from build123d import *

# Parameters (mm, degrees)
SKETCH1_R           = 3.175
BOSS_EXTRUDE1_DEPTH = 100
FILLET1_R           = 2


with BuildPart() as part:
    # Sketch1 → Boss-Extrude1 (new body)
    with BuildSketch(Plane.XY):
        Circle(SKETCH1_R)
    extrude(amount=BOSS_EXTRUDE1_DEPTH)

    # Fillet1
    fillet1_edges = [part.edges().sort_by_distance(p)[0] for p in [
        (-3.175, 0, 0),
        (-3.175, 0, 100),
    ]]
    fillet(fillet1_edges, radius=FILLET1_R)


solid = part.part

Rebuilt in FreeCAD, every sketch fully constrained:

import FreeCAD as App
import Part
import Sketcher

V = App.Vector


def edges_at(feature, points):
    """Names of the edges that pass closest to the given points."""
    edges = feature.Shape.Edges
    near = lambda p: min(range(len(edges)), key=lambda i: edges[i].distToShape(Part.Vertex(*p))[0])
    return sorted({f"Edge{near(p) + 1}" for p in points})

doc = App.newDocument("Part")
body = doc.addObject("PartDesign::Body", "Body")

# Sketch on XY plane
sketch1 = body.newObject("Sketcher::SketchObject", "Sketch")
sketch1.AttachmentSupport = (doc.getObject("XY_Plane"), [""])
sketch1.MapMode = "FlatFace"
sketch1.addGeometry(Part.Circle(V(0, 0, 0), V(0, 0, 1), 3.2), False)
sketch1.addConstraint([
    Sketcher.Constraint("Coincident", 0, 3, -1, 1),
    Sketcher.Constraint("Diameter", 0, 6.35),
])
pad1 = body.newObject("PartDesign::Pad", "Pad")
pad1.Profile = sketch1
pad1.Length = 100
doc.recompute()

fillet = body.newObject("PartDesign::Fillet", "Fillet")
fillet.Base = (pad1, edges_at(pad1, [(-3.175, 0, 0), (-3.175, 0, 100)]))
fillet.Radius = 2

doc.recompute()
